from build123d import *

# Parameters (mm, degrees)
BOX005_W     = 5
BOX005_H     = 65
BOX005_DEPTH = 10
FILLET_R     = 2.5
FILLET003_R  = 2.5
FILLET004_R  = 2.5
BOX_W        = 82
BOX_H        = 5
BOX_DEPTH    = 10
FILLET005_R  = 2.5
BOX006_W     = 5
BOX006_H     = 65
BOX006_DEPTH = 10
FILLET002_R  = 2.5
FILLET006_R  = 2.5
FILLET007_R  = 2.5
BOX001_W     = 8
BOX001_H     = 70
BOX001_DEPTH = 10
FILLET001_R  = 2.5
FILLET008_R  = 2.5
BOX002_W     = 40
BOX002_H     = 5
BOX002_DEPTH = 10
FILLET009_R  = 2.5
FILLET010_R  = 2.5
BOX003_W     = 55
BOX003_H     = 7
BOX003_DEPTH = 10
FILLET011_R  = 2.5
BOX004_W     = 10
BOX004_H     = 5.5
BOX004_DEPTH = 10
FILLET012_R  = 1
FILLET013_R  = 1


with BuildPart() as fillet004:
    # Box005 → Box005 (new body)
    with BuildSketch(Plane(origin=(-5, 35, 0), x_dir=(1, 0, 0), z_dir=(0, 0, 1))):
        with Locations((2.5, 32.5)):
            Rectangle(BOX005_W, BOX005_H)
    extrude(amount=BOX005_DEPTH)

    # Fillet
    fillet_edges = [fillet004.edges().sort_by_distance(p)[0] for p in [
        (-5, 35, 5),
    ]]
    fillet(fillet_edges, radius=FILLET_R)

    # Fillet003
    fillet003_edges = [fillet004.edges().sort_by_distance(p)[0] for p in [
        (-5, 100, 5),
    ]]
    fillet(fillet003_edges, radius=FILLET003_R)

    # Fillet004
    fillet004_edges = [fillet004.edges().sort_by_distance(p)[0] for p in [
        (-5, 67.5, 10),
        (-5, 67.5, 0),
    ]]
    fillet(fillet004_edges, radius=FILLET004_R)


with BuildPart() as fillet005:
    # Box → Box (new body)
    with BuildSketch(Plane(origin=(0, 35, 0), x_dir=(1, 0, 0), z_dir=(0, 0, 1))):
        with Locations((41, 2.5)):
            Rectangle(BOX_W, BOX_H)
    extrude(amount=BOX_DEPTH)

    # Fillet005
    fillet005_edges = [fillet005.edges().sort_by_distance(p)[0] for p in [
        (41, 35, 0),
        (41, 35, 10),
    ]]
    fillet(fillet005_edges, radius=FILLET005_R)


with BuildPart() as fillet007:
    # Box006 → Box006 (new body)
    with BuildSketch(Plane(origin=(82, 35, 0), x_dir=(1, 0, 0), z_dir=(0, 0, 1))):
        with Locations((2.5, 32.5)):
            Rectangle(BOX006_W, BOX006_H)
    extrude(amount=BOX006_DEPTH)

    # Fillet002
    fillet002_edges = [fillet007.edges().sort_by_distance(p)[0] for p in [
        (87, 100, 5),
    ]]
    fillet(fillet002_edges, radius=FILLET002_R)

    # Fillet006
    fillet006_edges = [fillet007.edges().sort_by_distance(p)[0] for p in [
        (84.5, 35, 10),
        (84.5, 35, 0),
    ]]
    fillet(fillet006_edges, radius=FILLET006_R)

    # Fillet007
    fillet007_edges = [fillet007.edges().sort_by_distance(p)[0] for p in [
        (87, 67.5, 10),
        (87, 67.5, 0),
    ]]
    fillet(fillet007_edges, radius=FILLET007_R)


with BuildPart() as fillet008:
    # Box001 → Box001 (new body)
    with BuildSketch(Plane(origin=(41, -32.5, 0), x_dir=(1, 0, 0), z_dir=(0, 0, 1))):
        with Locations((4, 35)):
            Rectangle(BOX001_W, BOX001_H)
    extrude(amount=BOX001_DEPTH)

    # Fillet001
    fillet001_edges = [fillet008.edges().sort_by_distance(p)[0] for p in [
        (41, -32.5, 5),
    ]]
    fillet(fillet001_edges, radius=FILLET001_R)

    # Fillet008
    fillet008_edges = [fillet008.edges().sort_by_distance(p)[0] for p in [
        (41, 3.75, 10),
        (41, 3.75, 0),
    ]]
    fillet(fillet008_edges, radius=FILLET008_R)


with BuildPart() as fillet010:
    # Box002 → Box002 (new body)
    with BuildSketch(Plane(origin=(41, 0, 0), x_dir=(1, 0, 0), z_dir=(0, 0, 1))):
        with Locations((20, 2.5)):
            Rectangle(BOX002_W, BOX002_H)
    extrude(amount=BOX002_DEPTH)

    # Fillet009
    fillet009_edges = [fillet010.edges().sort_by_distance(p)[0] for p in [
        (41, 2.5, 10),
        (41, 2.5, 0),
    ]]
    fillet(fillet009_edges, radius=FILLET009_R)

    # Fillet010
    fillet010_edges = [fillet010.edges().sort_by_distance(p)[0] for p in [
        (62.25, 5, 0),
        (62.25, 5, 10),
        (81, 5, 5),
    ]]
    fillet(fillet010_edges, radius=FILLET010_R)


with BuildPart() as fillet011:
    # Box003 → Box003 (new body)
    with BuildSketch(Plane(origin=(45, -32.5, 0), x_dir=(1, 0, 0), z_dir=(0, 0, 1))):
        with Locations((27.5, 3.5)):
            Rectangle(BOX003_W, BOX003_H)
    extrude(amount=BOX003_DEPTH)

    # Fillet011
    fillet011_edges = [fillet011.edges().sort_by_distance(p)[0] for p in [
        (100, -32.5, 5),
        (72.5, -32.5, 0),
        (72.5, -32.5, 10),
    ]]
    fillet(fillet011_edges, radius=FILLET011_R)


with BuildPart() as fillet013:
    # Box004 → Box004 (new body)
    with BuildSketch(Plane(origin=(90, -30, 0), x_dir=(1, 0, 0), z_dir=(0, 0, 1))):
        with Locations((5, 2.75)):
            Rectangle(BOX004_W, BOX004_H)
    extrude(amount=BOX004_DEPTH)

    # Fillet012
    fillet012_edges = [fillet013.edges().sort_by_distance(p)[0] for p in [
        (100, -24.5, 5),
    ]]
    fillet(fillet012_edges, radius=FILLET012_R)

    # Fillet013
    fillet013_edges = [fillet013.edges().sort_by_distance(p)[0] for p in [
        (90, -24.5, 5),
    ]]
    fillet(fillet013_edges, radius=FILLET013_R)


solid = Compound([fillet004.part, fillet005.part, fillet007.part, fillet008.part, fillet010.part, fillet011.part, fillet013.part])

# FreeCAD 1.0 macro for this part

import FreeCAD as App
import Part
import Sketcher
from FreeCAD import Vector


def edges_at(feature, points):
    """Names of the edges that pass closest to the given points."""
    edges = feature.Shape.Edges
    near = lambda p: min(range(len(edges)), key=lambda i: edges[i].distToShape(Part.Vertex(*p))[0])
    return sorted({f"Edge{near(p) + 1}" for p in points})

doc = App.newDocument("Part")
params = doc.addObject("Spreadsheet::Sheet", "Params")
for row, (alias, value) in enumerate([
    ("sketch1_width", "5 mm"),
    ("sketch1_height", "65 mm"),
    ("pad1_length", "10 mm"),
    ("fillet_radius", "2.5 mm"),
    ("fillet2_radius", "2.5 mm"),
    ("fillet3_radius", "2.5 mm"),
    ("sketch2_width", "82 mm"),
    ("sketch2_height", "5 mm"),
    ("pad2_length", "10 mm"),
    ("fillet4_radius", "2.5 mm"),
    ("sketch3_width", "5 mm"),
    ("sketch3_height", "65 mm"),
    ("pad3_length", "10 mm"),
    ("fillet5_radius", "2.5 mm"),
    ("fillet6_radius", "2.5 mm"),
    ("fillet7_radius", "2.5 mm"),
    ("sketch4_width", "8 mm"),
    ("sketch4_height", "70 mm"),
    ("pad4_length", "10 mm"),
    ("fillet8_radius", "2.5 mm"),
    ("fillet9_radius", "2.5 mm"),
    ("sketch5_width", "40 mm"),
    ("sketch5_height", "5 mm"),
    ("pad5_length", "10 mm"),
    ("fillet10_radius", "2.5 mm"),
    ("fillet11_radius", "2.5 mm"),
    ("sketch6_width", "55 mm"),
    ("sketch6_height", "7 mm"),
    ("pad6_length", "10 mm"),
    ("fillet12_radius", "2.5 mm"),
    ("sketch7_width", "10 mm"),
    ("sketch7_height", "5.5 mm"),
    ("pad7_length", "10 mm"),
    ("fillet13_radius", "1 mm"),
    ("fillet14_radius", "1 mm"),
], start=1):
    params.set(f"A{row}", alias)
    params.set(f"B{row}", "=" + value)
    params.setAlias(f"B{row}", alias)

body = doc.addObject("PartDesign::Body", "Body")

# Sketch on XY plane
sketch1 = body.newObject("Sketcher::SketchObject", "Sketch")
sketch1.AttachmentSupport = (doc.getObject("XY_Plane"), [""])
sketch1.MapMode = "FlatFace"
sketch1.addGeometry(Part.LineSegment(Vector(-5, 100, 0), Vector(-5, 35, 0)), False)
sketch1.addGeometry(Part.LineSegment(Vector(-5, 35, 0), Vector(0, 35, 0)), False)
sketch1.addGeometry(Part.LineSegment(Vector(0, 35, 0), Vector(0, 100, 0)), False)
sketch1.addGeometry(Part.LineSegment(Vector(0, 100, 0), Vector(-5, 100, 0)), False)
sketch1.addConstraint(Sketcher.Constraint("Coincident", 0, 2, 1, 1))
sketch1.addConstraint(Sketcher.Constraint("Coincident", 1, 2, 2, 1))
sketch1.addConstraint(Sketcher.Constraint("Coincident", 2, 2, 3, 1))
sketch1.addConstraint(Sketcher.Constraint("Coincident", 3, 2, 0, 1))
sketch1.addConstraint(Sketcher.Constraint("Vertical", 0))
sketch1.addConstraint(Sketcher.Constraint("Horizontal", 1))
sketch1.addConstraint(Sketcher.Constraint("Vertical", 2))
sketch1.addConstraint(Sketcher.Constraint("Horizontal", 3))
sketch1.addConstraint(Sketcher.Constraint("PointOnObject", 1, 2, -2))
sketch1.addConstraint(Sketcher.Constraint("DistanceX", 1, 1, 1, 2, 5.0))
sketch1.addConstraint(Sketcher.Constraint("DistanceY", 0, 2, 0, 1, 65.0))
sketch1.addConstraint(Sketcher.Constraint("DistanceY", -1, 1, 0, 2, 35.0))
sketch1.setExpression("Constraints[9]", "Params.sketch1_width")
sketch1.setExpression("Constraints[10]", "Params.sketch1_height")
pad1 = body.newObject("PartDesign::Pad", "Pad")
pad1.Profile = sketch1
pad1.setExpression("Length", "Params.pad1_length")
doc.recompute()

fillet = body.newObject("PartDesign::Fillet", "Fillet")
fillet.Base = (pad1, edges_at(pad1, [(-5, 35, 5)]))
fillet.setExpression("Radius", "Params.fillet_radius")
doc.recompute()

fillet2 = body.newObject("PartDesign::Fillet", "Fillet001")
fillet2.Base = (fillet, edges_at(fillet, [(-5, 100, 5)]))
fillet2.setExpression("Radius", "Params.fillet2_radius")
doc.recompute()

fillet3 = body.newObject("PartDesign::Fillet", "Fillet002")
fillet3.Base = (fillet2, edges_at(fillet2, [(-5, 67.5, 10), (-5, 67.5, 0)]))
fillet3.setExpression("Radius", "Params.fillet3_radius")
body2 = doc.addObject("PartDesign::Body", "Body001")

# Sketch on XY plane
sketch2 = body2.newObject("Sketcher::SketchObject", "Sketch001")
sketch2.AttachmentSupport = (doc.getObject("XY_Plane001"), [""])
sketch2.MapMode = "FlatFace"
sketch2.addGeometry(Part.LineSegment(Vector(0, 40, 0), Vector(0, 35, 0)), False)
sketch2.addGeometry(Part.LineSegment(Vector(0, 35, 0), Vector(82, 35, 0)), False)
sketch2.addGeometry(Part.LineSegment(Vector(82, 35, 0), Vector(82, 40, 0)), False)
sketch2.addGeometry(Part.LineSegment(Vector(82, 40, 0), Vector(0, 40, 0)), False)
sketch2.addConstraint(Sketcher.Constraint("Coincident", 0, 2, 1, 1))
sketch2.addConstraint(Sketcher.Constraint("Coincident", 1, 2, 2, 1))
sketch2.addConstraint(Sketcher.Constraint("Coincident", 2, 2, 3, 1))
sketch2.addConstraint(Sketcher.Constraint("Coincident", 3, 2, 0, 1))
sketch2.addConstraint(Sketcher.Constraint("Vertical", 0))
sketch2.addConstraint(Sketcher.Constraint("Horizontal", 1))
sketch2.addConstraint(Sketcher.Constraint("Vertical", 2))
sketch2.addConstraint(Sketcher.Constraint("Horizontal", 3))
sketch2.addConstraint(Sketcher.Constraint("PointOnObject", 0, 2, -2))
sketch2.addConstraint(Sketcher.Constraint("DistanceX", 1, 1, 1, 2, 82.0))
sketch2.addConstraint(Sketcher.Constraint("DistanceY", 0, 2, 0, 1, 5.0))
sketch2.addConstraint(Sketcher.Constraint("DistanceY", -1, 1, 0, 2, 35.0))
sketch2.setExpression("Constraints[9]", "Params.sketch2_width")
sketch2.setExpression("Constraints[10]", "Params.sketch2_height")
pad2 = body2.newObject("PartDesign::Pad", "Pad001")
pad2.Profile = sketch2
pad2.setExpression("Length", "Params.pad2_length")
doc.recompute()

fillet4 = body2.newObject("PartDesign::Fillet", "Fillet003")
fillet4.Base = (pad2, edges_at(pad2, [(41, 35, 0), (41, 35, 10)]))
fillet4.setExpression("Radius", "Params.fillet4_radius")
body3 = doc.addObject("PartDesign::Body", "Body002")

# Sketch on XY plane
sketch3 = body3.newObject("Sketcher::SketchObject", "Sketch002")
sketch3.AttachmentSupport = (doc.getObject("XY_Plane002"), [""])
sketch3.MapMode = "FlatFace"
sketch3.addGeometry(Part.LineSegment(Vector(82, 100, 0), Vector(82, 35, 0)), False)
sketch3.addGeometry(Part.LineSegment(Vector(82, 35, 0), Vector(87, 35, 0)), False)
sketch3.addGeometry(Part.LineSegment(Vector(87, 35, 0), Vector(87, 100, 0)), False)
sketch3.addGeometry(Part.LineSegment(Vector(87, 100, 0), Vector(82, 100, 0)), False)
sketch3.addConstraint(Sketcher.Constraint("Coincident", 0, 2, 1, 1))
sketch3.addConstraint(Sketcher.Constraint("Coincident", 1, 2, 2, 1))
sketch3.addConstraint(Sketcher.Constraint("Coincident", 2, 2, 3, 1))
sketch3.addConstraint(Sketcher.Constraint("Coincident", 3, 2, 0, 1))
sketch3.addConstraint(Sketcher.Constraint("Vertical", 0))
sketch3.addConstraint(Sketcher.Constraint("Horizontal", 1))
sketch3.addConstraint(Sketcher.Constraint("Vertical", 2))
sketch3.addConstraint(Sketcher.Constraint("Horizontal", 3))
sketch3.addConstraint(Sketcher.Constraint("DistanceX", 1, 1, 1, 2, 5.0))
sketch3.addConstraint(Sketcher.Constraint("DistanceY", 0, 2, 0, 1, 65.0))
sketch3.addConstraint(Sketcher.Constraint("DistanceX", -1, 1, 0, 2, 82.0))
sketch3.addConstraint(Sketcher.Constraint("DistanceY", -1, 1, 0, 2, 35.0))
sketch3.setExpression("Constraints[8]", "Params.sketch3_width")
sketch3.setExpression("Constraints[9]", "Params.sketch3_height")
pad3 = body3.newObject("PartDesign::Pad", "Pad002")
pad3.Profile = sketch3
pad3.setExpression("Length", "Params.pad3_length")
doc.recompute()

fillet5 = body3.newObject("PartDesign::Fillet", "Fillet004")
fillet5.Base = (pad3, edges_at(pad3, [(87, 100, 5)]))
fillet5.setExpression("Radius", "Params.fillet5_radius")
doc.recompute()

fillet6 = body3.newObject("PartDesign::Fillet", "Fillet005")
fillet6.Base = (fillet5, edges_at(fillet5, [(84.5, 35, 10), (84.5, 35, 0)]))
fillet6.setExpression("Radius", "Params.fillet6_radius")
doc.recompute()

fillet7 = body3.newObject("PartDesign::Fillet", "Fillet006")
fillet7.Base = (fillet6, edges_at(fillet6, [(87, 67.5, 10), (87, 67.5, 0)]))
fillet7.setExpression("Radius", "Params.fillet7_radius")
body4 = doc.addObject("PartDesign::Body", "Body003")

# Sketch on XY plane
sketch4 = body4.newObject("Sketcher::SketchObject", "Sketch003")
sketch4.AttachmentSupport = (doc.getObject("XY_Plane003"), [""])
sketch4.MapMode = "FlatFace"
sketch4.addGeometry(Part.LineSegment(Vector(41, 38, 0), Vector(41, -32, 0)), False)
sketch4.addGeometry(Part.LineSegment(Vector(41, -32, 0), Vector(49, -32, 0)), False)
sketch4.addGeometry(Part.LineSegment(Vector(49, -32, 0), Vector(49, 38, 0)), False)
sketch4.addGeometry(Part.LineSegment(Vector(49, 38, 0), Vector(41, 38, 0)), False)
sketch4.addConstraint(Sketcher.Constraint("Coincident", 0, 2, 1, 1))
sketch4.addConstraint(Sketcher.Constraint("Coincident", 1, 2, 2, 1))
sketch4.addConstraint(Sketcher.Constraint("Coincident", 2, 2, 3, 1))
sketch4.addConstraint(Sketcher.Constraint("Coincident", 3, 2, 0, 1))
sketch4.addConstraint(Sketcher.Constraint("Vertical", 0))
sketch4.addConstraint(Sketcher.Constraint("Horizontal", 1))
sketch4.addConstraint(Sketcher.Constraint("Vertical", 2))
sketch4.addConstraint(Sketcher.Constraint("Horizontal", 3))
sketch4.addConstraint(Sketcher.Constraint("DistanceX", 1, 1, 1, 2, 8.0))
sketch4.addConstraint(Sketcher.Constraint("DistanceY", 0, 2, 0, 1, 70.0))
sketch4.addConstraint(Sketcher.Constraint("DistanceX", -1, 1, 0, 2, 41.0))
sketch4.addConstraint(Sketcher.Constraint("DistanceY", 0, 2, -1, 1, 32.5))
sketch4.setExpression("Constraints[8]", "Params.sketch4_width")
sketch4.setExpression("Constraints[9]", "Params.sketch4_height")
pad4 = body4.newObject("PartDesign::Pad", "Pad003")
pad4.Profile = sketch4
pad4.setExpression("Length", "Params.pad4_length")
doc.recompute()

fillet8 = body4.newObject("PartDesign::Fillet", "Fillet007")
fillet8.Base = (pad4, edges_at(pad4, [(41, -32.5, 5)]))
fillet8.setExpression("Radius", "Params.fillet8_radius")
doc.recompute()

fillet9 = body4.newObject("PartDesign::Fillet", "Fillet008")
fillet9.Base = (fillet8, edges_at(fillet8, [(41, 3.75, 10), (41, 3.75, 0)]))
fillet9.setExpression("Radius", "Params.fillet9_radius")
body5 = doc.addObject("PartDesign::Body", "Body004")

# Sketch on XY plane
sketch5 = body5.newObject("Sketcher::SketchObject", "Sketch004")
sketch5.AttachmentSupport = (doc.getObject("XY_Plane004"), [""])
sketch5.MapMode = "FlatFace"
sketch5.addGeometry(Part.LineSegment(Vector(41, 5, 0), Vector(41, 0, 0)), False)
sketch5.addGeometry(Part.LineSegment(Vector(41, 0, 0), Vector(81, 0, 0)), False)
sketch5.addGeometry(Part.LineSegment(Vector(81, 0, 0), Vector(81, 5, 0)), False)
sketch5.addGeometry(Part.LineSegment(Vector(81, 5, 0), Vector(41, 5, 0)), False)
sketch5.addConstraint(Sketcher.Constraint("Coincident", 0, 2, 1, 1))
sketch5.addConstraint(Sketcher.Constraint("Coincident", 1, 2, 2, 1))
sketch5.addConstraint(Sketcher.Constraint("Coincident", 2, 2, 3, 1))
sketch5.addConstraint(Sketcher.Constraint("Coincident", 3, 2, 0, 1))
sketch5.addConstraint(Sketcher.Constraint("Vertical", 0))
sketch5.addConstraint(Sketcher.Constraint("Horizontal", 1))
sketch5.addConstraint(Sketcher.Constraint("Vertical", 2))
sketch5.addConstraint(Sketcher.Constraint("Horizontal", 3))
sketch5.addConstraint(Sketcher.Constraint("PointOnObject", 0, 2, -1))
sketch5.addConstraint(Sketcher.Constraint("DistanceX", 1, 1, 1, 2, 40.0))
sketch5.addConstraint(Sketcher.Constraint("DistanceY", 0, 2, 0, 1, 5.0))
sketch5.addConstraint(Sketcher.Constraint("DistanceX", -1, 1, 0, 2, 41.0))
sketch5.setExpression("Constraints[9]", "Params.sketch5_width")
sketch5.setExpression("Constraints[10]", "Params.sketch5_height")
pad5 = body5.newObject("PartDesign::Pad", "Pad004")
pad5.Profile = sketch5
pad5.setExpression("Length", "Params.pad5_length")
doc.recompute()

fillet10 = body5.newObject("PartDesign::Fillet", "Fillet009")
fillet10.Base = (pad5, edges_at(pad5, [(41, 2.5, 10), (41, 2.5, 0)]))
fillet10.setExpression("Radius", "Params.fillet10_radius")
doc.recompute()

fillet11 = body5.newObject("PartDesign::Fillet", "Fillet010")
fillet11.Base = (fillet10, edges_at(fillet10, [(62.25, 5, 0), (62.25, 5, 10), (81, 5, 5)]))
fillet11.setExpression("Radius", "Params.fillet11_radius")
body6 = doc.addObject("PartDesign::Body", "Body005")

# Sketch on XY plane
sketch6 = body6.newObject("Sketcher::SketchObject", "Sketch005")
sketch6.AttachmentSupport = (doc.getObject("XY_Plane005"), [""])
sketch6.MapMode = "FlatFace"
sketch6.addGeometry(Part.LineSegment(Vector(45, -26, 0), Vector(45, -32, 0)), False)
sketch6.addGeometry(Part.LineSegment(Vector(45, -32, 0), Vector(100, -32, 0)), False)
sketch6.addGeometry(Part.LineSegment(Vector(100, -32, 0), Vector(100, -26, 0)), False)
sketch6.addGeometry(Part.LineSegment(Vector(100, -26, 0), Vector(45, -26, 0)), False)
sketch6.addConstraint(Sketcher.Constraint("Coincident", 0, 2, 1, 1))
sketch6.addConstraint(Sketcher.Constraint("Coincident", 1, 2, 2, 1))
sketch6.addConstraint(Sketcher.Constraint("Coincident", 2, 2, 3, 1))
sketch6.addConstraint(Sketcher.Constraint("Coincident", 3, 2, 0, 1))
sketch6.addConstraint(Sketcher.Constraint("Vertical", 0))
sketch6.addConstraint(Sketcher.Constraint("Horizontal", 1))
sketch6.addConstraint(Sketcher.Constraint("Vertical", 2))
sketch6.addConstraint(Sketcher.Constraint("Horizontal", 3))
sketch6.addConstraint(Sketcher.Constraint("DistanceX", 1, 1, 1, 2, 55.0))
sketch6.addConstraint(Sketcher.Constraint("DistanceY", 0, 2, 0, 1, 7.0))
sketch6.addConstraint(Sketcher.Constraint("DistanceX", -1, 1, 0, 2, 45.0))
sketch6.addConstraint(Sketcher.Constraint("DistanceY", 0, 2, -1, 1, 32.5))
sketch6.setExpression("Constraints[8]", "Params.sketch6_width")
sketch6.setExpression("Constraints[9]", "Params.sketch6_height")
pad6 = body6.newObject("PartDesign::Pad", "Pad005")
pad6.Profile = sketch6
pad6.setExpression("Length", "Params.pad6_length")
doc.recompute()

fillet12 = body6.newObject("PartDesign::Fillet", "Fillet011")
fillet12.Base = (pad6, edges_at(pad6, [(100, -32.5, 5), (72.5, -32.5, 0), (72.5, -32.5, 10)]))
fillet12.setExpression("Radius", "Params.fillet12_radius")
body7 = doc.addObject("PartDesign::Body", "Body006")

# Sketch on XY plane
sketch7 = body7.newObject("Sketcher::SketchObject", "Sketch006")
sketch7.AttachmentSupport = (doc.getObject("XY_Plane006"), [""])
sketch7.MapMode = "FlatFace"
sketch7.addGeometry(Part.LineSegment(Vector(90, -24, 0), Vector(90, -30, 0)), False)
sketch7.addGeometry(Part.LineSegment(Vector(90, -30, 0), Vector(100, -30, 0)), False)
sketch7.addGeometry(Part.LineSegment(Vector(100, -30, 0), Vector(100, -24, 0)), False)
sketch7.addGeometry(Part.LineSegment(Vector(100, -24, 0), Vector(90, -24, 0)), False)
sketch7.addConstraint(Sketcher.Constraint("Coincident", 0, 2, 1, 1))
sketch7.addConstraint(Sketcher.Constraint("Coincident", 1, 2, 2, 1))
sketch7.addConstraint(Sketcher.Constraint("Coincident", 2, 2, 3, 1))
sketch7.addConstraint(Sketcher.Constraint("Coincident", 3, 2, 0, 1))
sketch7.addConstraint(Sketcher.Constraint("Vertical", 0))
sketch7.addConstraint(Sketcher.Constraint("Horizontal", 1))
sketch7.addConstraint(Sketcher.Constraint("Vertical", 2))
sketch7.addConstraint(Sketcher.Constraint("Horizontal", 3))
sketch7.addConstraint(Sketcher.Constraint("DistanceX", 1, 1, 1, 2, 10.0))
sketch7.addConstraint(Sketcher.Constraint("DistanceY", 0, 2, 0, 1, 5.5))
sketch7.addConstraint(Sketcher.Constraint("DistanceX", -1, 1, 0, 2, 90.0))
sketch7.addConstraint(Sketcher.Constraint("DistanceY", 0, 2, -1, 1, 30.0))
sketch7.setExpression("Constraints[8]", "Params.sketch7_width")
sketch7.setExpression("Constraints[9]", "Params.sketch7_height")
pad7 = body7.newObject("PartDesign::Pad", "Pad006")
pad7.Profile = sketch7
pad7.setExpression("Length", "Params.pad7_length")
doc.recompute()

fillet13 = body7.newObject("PartDesign::Fillet", "Fillet012")
fillet13.Base = (pad7, edges_at(pad7, [(100, -24.5, 5)]))
fillet13.setExpression("Radius", "Params.fillet13_radius")
doc.recompute()

fillet14 = body7.newObject("PartDesign::Fillet", "Fillet013")
fillet14.Base = (fillet13, edges_at(fillet13, [(90, -24.5, 5)]))
fillet14.setExpression("Radius", "Params.fillet14_radius")

doc.recompute()
